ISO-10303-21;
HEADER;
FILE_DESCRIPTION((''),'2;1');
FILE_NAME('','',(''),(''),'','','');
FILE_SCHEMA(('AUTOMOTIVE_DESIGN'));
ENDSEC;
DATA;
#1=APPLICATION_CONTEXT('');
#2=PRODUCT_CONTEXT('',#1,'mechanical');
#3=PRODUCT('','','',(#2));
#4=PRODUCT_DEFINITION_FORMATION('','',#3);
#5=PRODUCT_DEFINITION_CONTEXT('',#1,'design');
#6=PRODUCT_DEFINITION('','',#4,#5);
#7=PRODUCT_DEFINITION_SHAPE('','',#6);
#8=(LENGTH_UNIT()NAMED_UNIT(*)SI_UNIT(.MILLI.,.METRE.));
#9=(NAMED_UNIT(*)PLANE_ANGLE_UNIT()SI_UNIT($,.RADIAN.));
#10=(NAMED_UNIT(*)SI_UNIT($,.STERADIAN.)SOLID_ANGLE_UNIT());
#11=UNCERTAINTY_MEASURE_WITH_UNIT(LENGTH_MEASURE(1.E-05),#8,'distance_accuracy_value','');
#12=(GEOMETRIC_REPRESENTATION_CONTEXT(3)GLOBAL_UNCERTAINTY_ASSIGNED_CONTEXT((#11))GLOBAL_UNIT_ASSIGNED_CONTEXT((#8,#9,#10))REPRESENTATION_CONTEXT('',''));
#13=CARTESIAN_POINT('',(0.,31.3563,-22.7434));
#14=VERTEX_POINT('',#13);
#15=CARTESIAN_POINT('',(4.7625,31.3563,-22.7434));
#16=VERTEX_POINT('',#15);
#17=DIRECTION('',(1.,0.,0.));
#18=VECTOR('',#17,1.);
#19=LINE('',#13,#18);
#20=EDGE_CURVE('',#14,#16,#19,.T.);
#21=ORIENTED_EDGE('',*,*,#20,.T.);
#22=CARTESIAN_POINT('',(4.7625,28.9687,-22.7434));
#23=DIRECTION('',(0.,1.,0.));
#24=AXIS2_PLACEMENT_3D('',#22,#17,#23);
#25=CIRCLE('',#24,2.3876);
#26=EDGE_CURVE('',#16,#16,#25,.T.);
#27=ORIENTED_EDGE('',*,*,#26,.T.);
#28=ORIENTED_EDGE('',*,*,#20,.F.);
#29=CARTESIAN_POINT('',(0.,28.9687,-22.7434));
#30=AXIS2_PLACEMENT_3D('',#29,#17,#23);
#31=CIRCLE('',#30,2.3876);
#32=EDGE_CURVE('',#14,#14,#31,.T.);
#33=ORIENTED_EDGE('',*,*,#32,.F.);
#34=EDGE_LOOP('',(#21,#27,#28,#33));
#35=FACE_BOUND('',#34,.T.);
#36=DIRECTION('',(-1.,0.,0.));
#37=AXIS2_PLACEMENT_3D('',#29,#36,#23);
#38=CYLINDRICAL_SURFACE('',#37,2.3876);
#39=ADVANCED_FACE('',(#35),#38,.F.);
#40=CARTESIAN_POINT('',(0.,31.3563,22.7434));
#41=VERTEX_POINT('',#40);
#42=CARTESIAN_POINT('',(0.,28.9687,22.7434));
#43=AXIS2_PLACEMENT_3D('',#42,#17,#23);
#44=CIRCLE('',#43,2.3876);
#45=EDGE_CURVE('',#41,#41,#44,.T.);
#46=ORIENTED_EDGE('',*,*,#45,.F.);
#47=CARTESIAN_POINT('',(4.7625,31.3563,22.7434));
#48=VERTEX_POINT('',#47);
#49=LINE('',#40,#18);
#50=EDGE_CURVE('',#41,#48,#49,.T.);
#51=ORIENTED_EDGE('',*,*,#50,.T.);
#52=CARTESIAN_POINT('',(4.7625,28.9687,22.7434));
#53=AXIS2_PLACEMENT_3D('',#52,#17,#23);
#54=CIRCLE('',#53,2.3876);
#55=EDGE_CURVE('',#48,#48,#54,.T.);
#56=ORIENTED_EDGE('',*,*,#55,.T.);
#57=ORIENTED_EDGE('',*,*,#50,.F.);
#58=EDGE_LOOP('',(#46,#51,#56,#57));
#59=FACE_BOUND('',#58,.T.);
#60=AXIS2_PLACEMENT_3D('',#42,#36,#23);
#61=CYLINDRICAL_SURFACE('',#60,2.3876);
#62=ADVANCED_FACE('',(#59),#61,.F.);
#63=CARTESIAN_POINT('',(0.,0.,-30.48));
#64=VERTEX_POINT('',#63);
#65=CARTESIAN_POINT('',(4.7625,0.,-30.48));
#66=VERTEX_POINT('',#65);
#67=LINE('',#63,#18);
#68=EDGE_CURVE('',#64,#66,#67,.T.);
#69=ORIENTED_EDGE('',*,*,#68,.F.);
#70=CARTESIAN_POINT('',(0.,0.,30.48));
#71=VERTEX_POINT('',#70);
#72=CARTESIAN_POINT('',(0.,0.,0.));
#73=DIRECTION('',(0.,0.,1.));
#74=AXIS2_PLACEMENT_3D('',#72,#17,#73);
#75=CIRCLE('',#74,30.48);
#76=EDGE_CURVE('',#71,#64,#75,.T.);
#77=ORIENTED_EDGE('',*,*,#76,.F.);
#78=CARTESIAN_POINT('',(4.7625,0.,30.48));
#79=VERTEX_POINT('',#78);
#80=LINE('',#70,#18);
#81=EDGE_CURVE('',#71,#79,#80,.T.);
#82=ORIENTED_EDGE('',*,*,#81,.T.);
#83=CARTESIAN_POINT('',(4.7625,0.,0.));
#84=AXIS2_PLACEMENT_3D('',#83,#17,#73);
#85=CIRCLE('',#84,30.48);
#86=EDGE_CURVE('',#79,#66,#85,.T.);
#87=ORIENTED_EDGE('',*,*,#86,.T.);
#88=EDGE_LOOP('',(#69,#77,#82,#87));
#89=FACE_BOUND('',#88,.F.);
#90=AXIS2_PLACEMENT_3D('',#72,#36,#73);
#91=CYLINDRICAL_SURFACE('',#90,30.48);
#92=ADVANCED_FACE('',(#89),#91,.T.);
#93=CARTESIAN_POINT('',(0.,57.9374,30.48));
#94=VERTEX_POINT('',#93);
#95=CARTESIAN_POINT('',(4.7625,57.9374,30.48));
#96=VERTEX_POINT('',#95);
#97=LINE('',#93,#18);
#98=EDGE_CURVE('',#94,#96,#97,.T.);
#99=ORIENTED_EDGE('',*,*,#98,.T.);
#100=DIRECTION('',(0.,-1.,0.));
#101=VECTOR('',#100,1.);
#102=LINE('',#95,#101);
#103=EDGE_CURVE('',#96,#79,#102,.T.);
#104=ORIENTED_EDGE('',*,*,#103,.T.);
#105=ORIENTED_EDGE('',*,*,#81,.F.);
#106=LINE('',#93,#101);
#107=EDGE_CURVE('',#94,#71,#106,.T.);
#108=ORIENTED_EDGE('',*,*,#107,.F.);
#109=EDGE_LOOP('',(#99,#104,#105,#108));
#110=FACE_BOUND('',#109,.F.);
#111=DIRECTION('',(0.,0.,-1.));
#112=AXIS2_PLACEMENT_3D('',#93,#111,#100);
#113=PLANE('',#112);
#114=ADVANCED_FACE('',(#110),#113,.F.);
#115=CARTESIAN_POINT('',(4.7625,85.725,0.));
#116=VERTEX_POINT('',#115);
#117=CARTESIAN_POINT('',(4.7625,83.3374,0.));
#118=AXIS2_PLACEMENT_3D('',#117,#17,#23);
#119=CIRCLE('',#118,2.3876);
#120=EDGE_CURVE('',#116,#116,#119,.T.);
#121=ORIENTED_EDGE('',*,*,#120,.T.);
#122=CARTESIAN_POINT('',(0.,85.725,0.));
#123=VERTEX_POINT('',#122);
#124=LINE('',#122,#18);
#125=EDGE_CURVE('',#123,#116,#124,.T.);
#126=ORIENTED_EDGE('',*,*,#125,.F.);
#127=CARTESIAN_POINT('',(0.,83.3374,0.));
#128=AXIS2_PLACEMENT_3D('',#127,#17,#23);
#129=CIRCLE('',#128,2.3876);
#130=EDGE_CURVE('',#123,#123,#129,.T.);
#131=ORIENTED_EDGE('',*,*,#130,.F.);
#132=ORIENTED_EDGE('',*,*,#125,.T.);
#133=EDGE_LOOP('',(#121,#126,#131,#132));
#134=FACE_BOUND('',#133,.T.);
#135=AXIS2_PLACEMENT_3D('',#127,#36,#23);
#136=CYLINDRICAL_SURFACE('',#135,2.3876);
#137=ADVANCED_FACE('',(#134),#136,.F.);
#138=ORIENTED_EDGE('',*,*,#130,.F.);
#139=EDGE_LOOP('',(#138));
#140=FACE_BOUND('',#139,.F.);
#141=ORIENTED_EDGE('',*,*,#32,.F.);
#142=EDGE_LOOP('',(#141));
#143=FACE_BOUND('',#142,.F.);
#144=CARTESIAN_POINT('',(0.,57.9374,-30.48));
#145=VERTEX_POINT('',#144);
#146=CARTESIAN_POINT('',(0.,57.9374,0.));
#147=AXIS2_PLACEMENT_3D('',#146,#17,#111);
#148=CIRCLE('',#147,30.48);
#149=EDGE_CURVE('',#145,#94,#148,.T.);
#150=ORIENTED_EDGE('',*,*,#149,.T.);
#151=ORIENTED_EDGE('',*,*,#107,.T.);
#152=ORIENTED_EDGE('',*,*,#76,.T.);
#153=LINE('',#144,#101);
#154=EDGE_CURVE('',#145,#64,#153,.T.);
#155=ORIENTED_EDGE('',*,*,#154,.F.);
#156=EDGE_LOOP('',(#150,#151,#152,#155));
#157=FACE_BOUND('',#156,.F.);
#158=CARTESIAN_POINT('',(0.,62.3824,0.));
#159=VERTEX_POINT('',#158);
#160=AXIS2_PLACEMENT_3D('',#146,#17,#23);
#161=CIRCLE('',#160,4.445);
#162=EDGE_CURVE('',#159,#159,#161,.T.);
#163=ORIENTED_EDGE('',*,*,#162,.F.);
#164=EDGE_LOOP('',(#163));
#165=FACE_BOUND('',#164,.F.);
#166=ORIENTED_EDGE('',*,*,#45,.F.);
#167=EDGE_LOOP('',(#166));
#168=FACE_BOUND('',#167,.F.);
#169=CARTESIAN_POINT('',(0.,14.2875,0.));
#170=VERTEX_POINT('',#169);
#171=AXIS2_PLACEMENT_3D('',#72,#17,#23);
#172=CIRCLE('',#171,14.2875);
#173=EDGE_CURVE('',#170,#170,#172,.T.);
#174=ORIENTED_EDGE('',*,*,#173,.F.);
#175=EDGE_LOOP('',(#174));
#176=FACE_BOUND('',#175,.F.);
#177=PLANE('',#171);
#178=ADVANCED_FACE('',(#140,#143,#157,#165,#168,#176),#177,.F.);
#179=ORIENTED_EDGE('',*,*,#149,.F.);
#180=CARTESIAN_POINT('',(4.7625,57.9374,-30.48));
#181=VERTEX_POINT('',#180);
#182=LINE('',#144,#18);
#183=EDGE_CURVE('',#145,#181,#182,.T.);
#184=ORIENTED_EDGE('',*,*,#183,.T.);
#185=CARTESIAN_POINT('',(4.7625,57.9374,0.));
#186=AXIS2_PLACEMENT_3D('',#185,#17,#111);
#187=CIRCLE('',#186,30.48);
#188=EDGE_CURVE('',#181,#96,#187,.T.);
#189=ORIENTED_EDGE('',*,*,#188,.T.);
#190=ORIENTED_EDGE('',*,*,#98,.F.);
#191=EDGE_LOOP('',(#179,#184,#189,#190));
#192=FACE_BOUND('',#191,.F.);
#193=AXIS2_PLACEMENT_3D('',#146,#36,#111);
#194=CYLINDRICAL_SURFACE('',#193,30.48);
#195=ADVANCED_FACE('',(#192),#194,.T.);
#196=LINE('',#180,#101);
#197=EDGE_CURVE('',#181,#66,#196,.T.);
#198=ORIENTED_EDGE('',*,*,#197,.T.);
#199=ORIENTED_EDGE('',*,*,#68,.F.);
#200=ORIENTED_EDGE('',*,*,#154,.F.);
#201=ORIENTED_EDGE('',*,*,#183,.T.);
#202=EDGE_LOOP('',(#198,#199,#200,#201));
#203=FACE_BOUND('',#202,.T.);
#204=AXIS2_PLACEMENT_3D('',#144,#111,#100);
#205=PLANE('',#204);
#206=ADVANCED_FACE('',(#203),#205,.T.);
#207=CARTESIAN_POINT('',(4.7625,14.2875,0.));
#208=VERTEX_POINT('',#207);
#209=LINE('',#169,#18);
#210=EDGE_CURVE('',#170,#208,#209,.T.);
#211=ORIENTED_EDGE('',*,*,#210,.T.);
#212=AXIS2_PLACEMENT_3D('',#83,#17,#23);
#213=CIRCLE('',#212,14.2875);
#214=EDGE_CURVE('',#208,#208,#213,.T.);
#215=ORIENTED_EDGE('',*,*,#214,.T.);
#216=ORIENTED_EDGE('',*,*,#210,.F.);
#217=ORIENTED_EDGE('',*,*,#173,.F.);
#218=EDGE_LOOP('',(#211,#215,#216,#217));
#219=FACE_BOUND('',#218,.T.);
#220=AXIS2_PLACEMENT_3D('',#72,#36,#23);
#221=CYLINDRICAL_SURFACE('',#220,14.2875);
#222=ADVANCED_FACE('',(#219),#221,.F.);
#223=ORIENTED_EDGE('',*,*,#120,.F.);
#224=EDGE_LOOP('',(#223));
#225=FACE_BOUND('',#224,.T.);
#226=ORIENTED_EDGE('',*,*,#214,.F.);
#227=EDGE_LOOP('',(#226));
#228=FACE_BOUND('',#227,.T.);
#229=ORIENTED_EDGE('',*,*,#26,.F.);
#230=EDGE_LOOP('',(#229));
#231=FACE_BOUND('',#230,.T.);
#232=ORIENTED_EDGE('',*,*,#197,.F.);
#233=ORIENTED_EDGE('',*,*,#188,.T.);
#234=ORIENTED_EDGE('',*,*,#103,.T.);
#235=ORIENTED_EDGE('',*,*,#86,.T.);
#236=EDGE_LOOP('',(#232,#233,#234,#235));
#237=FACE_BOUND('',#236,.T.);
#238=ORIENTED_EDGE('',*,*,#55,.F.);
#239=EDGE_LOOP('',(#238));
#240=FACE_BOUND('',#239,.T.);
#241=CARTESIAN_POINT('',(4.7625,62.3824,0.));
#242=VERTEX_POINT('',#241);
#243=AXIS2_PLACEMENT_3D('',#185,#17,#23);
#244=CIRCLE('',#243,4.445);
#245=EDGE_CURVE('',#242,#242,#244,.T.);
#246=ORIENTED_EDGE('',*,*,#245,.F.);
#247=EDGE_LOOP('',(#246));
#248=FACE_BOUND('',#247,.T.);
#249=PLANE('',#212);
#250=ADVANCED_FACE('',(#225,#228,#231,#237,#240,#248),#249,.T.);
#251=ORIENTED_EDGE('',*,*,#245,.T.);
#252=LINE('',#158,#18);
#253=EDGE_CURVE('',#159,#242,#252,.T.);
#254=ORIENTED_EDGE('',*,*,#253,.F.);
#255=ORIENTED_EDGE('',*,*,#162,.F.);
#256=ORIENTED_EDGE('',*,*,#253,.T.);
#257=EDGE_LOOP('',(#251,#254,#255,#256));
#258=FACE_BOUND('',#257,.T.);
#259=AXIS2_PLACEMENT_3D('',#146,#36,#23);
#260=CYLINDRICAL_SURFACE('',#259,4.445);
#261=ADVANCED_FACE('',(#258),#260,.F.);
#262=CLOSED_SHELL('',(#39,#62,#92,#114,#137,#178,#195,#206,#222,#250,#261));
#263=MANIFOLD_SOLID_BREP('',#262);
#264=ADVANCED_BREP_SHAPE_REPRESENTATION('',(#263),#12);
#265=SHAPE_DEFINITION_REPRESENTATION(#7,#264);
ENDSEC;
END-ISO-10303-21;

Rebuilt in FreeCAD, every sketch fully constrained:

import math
import FreeCAD as App
import Part
import Sketcher
Q = App.Units.Quantity

doc = App.newDocument("Part")
body = doc.addObject("PartDesign::Body", "Body")

sketch1 = body.newObject("Sketcher::SketchObject", "Sketch")
sketch1.AttachmentSupport = (doc.getObject("YZ_Plane"), [""])
sketch1.MapMode = "FlatFace"
sketch1.addGeometry(Part.LineSegment(App.Vector(0, -30.5, 0), App.Vector(57.9, -30.5, 0)), False)
sketch1.addGeometry(Part.ArcOfCircle(Part.Circle(App.Vector(57.9, 0, 0), App.Vector(0, 0, 1), 30.5), math.radians(-90), math.radians(90)), False)
sketch1.addGeometry(Part.LineSegment(App.Vector(57.9, 30.5, 0), App.Vector(0, 30.5, 0)), False)
sketch1.addGeometry(Part.ArcOfCircle(Part.Circle(App.Vector(0, 0, 0), App.Vector(0, 0, 1), 30.5), math.radians(90), math.radians(270)), False)
sketch1.addGeometry(Part.Circle(App.Vector(29, -22.7, 0), App.Vector(0, 0, 1), 2.4), False)
sketch1.addGeometry(Part.Circle(App.Vector(0, 0, 0), App.Vector(0, 0, 1), 14.3), False)
sketch1.addGeometry(Part.Circle(App.Vector(29, 22.7, 0), App.Vector(0, 0, 1), 2.4), False)
sketch1.addGeometry(Part.Circle(App.Vector(57.9, 0, 0), App.Vector(0, 0, 1), 4.4), False)
sketch1.addGeometry(Part.Circle(App.Vector(83.3, 0, 0), App.Vector(0, 0, 1), 2.4), False)
sketch1.addConstraint(Sketcher.Constraint("Tangent", 0, 2, 1, 1))
sketch1.addConstraint(Sketcher.Constraint("Tangent", 1, 2, 2, 1))
sketch1.addConstraint(Sketcher.Constraint("Tangent", 2, 2, 3, 1))
sketch1.addConstraint(Sketcher.Constraint("Tangent", 3, 2, 0, 1))
sketch1.addConstraint(Sketcher.Constraint("Horizontal", 0))
sketch1.addConstraint(Sketcher.Constraint("Horizontal", 2))
sketch1.addConstraint(Sketcher.Constraint("Coincident", 3, 3, -1, 1))
sketch1.addConstraint(Sketcher.Constraint("Coincident", 5, 3, -1, 1))
sketch1.addConstraint(Sketcher.Constraint("Coincident", 7, 3, 1, 3))
sketch1.addConstraint(Sketcher.Constraint("Equal", 4, 6))
sketch1.addConstraint(Sketcher.Constraint("Equal", 6, 8))
sketch1.addConstraint(Sketcher.Constraint("Symmetric", 4, 3, 6, 3, -1))
sketch1.addConstraint(Sketcher.Constraint("PointOnObject", 8, 3, -1))
sketch1.addConstraint(Sketcher.Constraint("Radius", 1, Q("1.2 in")))
sketch1.addConstraint(Sketcher.Constraint("Diameter", 7, Q("0.35 in")))
sketch1.addConstraint(Sketcher.Constraint("Diameter", 4, Q("0.188 in")))
sketch1.addConstraint(Sketcher.Constraint("Diameter", 5, Q("1.125 in")))
sketch1.addConstraint(Sketcher.Constraint("DistanceX", 0, 1, 0, 2, Q("2.281 in")))
sketch1.addConstraint(Sketcher.Constraint("DistanceX", 1, 3, 8, 3, Q("1 in")))
sketch1.addConstraint(Sketcher.Constraint("DistanceX", -1, 1, 4, 3, Q("1.1405 in")))
sketch1.addConstraint(Sketcher.Constraint("DistanceY", 4, 3, -1, 1, Q("0.8954 in")))
pad1 = body.newObject("PartDesign::Pad", "Pad")
pad1.Profile = sketch1
pad1.Length = Q("0.1875 in")

doc.recompute()
